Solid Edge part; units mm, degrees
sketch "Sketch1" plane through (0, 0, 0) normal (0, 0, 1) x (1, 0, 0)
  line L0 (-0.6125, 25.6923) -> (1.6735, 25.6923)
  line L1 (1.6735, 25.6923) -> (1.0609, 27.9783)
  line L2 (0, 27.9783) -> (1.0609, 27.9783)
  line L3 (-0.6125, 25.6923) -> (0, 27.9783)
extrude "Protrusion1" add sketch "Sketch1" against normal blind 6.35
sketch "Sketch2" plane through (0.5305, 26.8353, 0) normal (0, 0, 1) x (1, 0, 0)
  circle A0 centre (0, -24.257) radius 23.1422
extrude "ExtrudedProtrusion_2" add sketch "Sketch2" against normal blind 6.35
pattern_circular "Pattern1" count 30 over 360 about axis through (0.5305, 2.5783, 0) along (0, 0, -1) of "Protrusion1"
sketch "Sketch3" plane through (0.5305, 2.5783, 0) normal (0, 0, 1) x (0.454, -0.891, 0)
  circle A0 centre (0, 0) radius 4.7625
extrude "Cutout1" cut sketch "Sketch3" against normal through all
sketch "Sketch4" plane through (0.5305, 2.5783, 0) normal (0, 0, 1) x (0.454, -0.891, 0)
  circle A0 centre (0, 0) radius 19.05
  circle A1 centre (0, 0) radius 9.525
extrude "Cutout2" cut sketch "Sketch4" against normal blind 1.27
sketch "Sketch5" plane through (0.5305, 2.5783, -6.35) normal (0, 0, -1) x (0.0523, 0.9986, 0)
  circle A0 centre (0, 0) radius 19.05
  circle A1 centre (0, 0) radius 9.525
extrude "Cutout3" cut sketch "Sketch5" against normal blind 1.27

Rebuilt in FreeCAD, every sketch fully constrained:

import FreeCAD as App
import Part
import Sketcher
from FreeCAD import Vector
Q = App.Units.Quantity

doc = App.newDocument("Part")
params = doc.addObject("Spreadsheet::Sheet", "Params")
for row, (alias, value) in enumerate([
    ("sketch1_width", "0.09 in"),
    ("pad1_length", "0.25 in"),
    ("pad2_length", "0.25 in"),
    ("sketch3_diameter", "0.375 in"),
    ("sketch4_diameter", "1.5 in"),
    ("sketch4_diameter2", "0.75 in"),
    ("pocket2_length", "0.05 in"),
    ("sketch5_diameter", "1.5 in"),
    ("sketch5_diameter2", "0.75 in"),
    ("pocket3_length", "0.05 in"),
], start=1):
    params.set(f"A{row}", alias)
    params.set(f"B{row}", "=" + value)
    params.setAlias(f"B{row}", alias)

body = doc.addObject("PartDesign::Body", "Body")

# Sketch on XY plane
sketch1 = body.newObject("Sketcher::SketchObject", "Sketch")
sketch1.AttachmentSupport = (doc.getObject("XY_Plane"), [""])
sketch1.MapMode = "FlatFace"
sketch1.addGeometry(Part.LineSegment(Vector(0, 27.9783, 0), Vector(-0.6125, 25.6923, 0)), False)
sketch1.addGeometry(Part.LineSegment(Vector(-0.6125, 25.6923, 0), Vector(1.6735, 25.6923, 0)), False)
sketch1.addGeometry(Part.LineSegment(Vector(1.6735, 25.6923, 0), Vector(1.0609, 27.9783, 0)), False)
sketch1.addGeometry(Part.LineSegment(Vector(1.0609, 27.9783, 0), Vector(0, 27.9783, 0)), False)
sketch1.addConstraint(Sketcher.Constraint("Coincident", 0, 2, 1, 1))
sketch1.addConstraint(Sketcher.Constraint("Coincident", 1, 2, 2, 1))
sketch1.addConstraint(Sketcher.Constraint("Coincident", 2, 2, 3, 1))
sketch1.addConstraint(Sketcher.Constraint("Coincident", 3, 2, 0, 1))
sketch1.addConstraint(Sketcher.Constraint("Horizontal", 1))
sketch1.addConstraint(Sketcher.Constraint("Horizontal", 3))
sketch1.addConstraint(Sketcher.Constraint("PointOnObject", 3, 2, -2))
sketch1.addConstraint(Sketcher.Constraint("Equal", 0, 2))
sketch1.addConstraint(Sketcher.Constraint("Angle", 0, Q("-104.9993 deg")))
sketch1.addConstraint(Sketcher.Constraint("DistanceX", 1, 1, 1, 2, Q("0.09 in")))
sketch1.addConstraint(Sketcher.Constraint("DistanceY", 1, 2, 2, 2, Q("0.09 in")))
sketch1.addConstraint(Sketcher.Constraint("DistanceY", -1, 1, 0, 2, Q("1.0115 in")))
sketch1.setExpression("Constraints[9]", "Params.sketch1_width")
pad1 = body.newObject("PartDesign::Pad", "Pad")
pad1.Profile = sketch1
pad1.setExpression("Length", "Params.pad1_length")
pad1.Reversed = True

# Sketch on XY plane
sketch2 = body.newObject("Sketcher::SketchObject", "Sketch001")
sketch2.AttachmentSupport = (doc.getObject("XY_Plane"), [""])
sketch2.MapMode = "FlatFace"
sketch2.addGeometry(Part.Circle(Vector(0.5305, 2.5783, 0), Vector(0, 0, 1), 23.1422), False)
sketch2.addConstraint(Sketcher.Constraint("Diameter", 0, Q("46.2844 mm")))
sketch2.addConstraint(Sketcher.Constraint("DistanceY", -1, 1, 0, 3, Q("0.1015 in")))
sketch2.addConstraint(Sketcher.Constraint("DistanceX", -1, 1, 0, 3, Q("0.5305 mm")))
pad2 = body.newObject("PartDesign::Pad", "Pad001")
pad2.Profile = sketch2
pad2.setExpression("Length", "Params.pad2_length")
pad2.Reversed = True
doc.recompute()

datumline = body.newObject("PartDesign::Line", "DatumLine")
datumline.Placement = App.Placement(Vector(0.5305, 2.5783, 0), App.Rotation(Vector(0, 0, 1), Vector(0, 0, 1)))
polarpattern = body.newObject("PartDesign::PolarPattern", "PolarPattern")
polarpattern.Originals = [pad1]
polarpattern.Axis = (datumline, [""])
polarpattern.Angle = 360
polarpattern.Occurrences = 30
body.Tip = polarpattern

# Sketch on XY plane
sketch3 = body.newObject("Sketcher::SketchObject", "Sketch002")
sketch3.AttachmentSupport = (doc.getObject("XY_Plane"), [""])
sketch3.MapMode = "FlatFace"
sketch3.addGeometry(Part.Circle(Vector(0.5305, 2.5783, 0), Vector(0, 0, 1), 4.7625), False)
sketch3.addConstraint(Sketcher.Constraint("Diameter", 0, Q("0.375 in")))
sketch3.addConstraint(Sketcher.Constraint("DistanceY", -1, 1, 0, 3, Q("0.1015 in")))
sketch3.addConstraint(Sketcher.Constraint("DistanceX", -1, 1, 0, 3, Q("0.5305 mm")))
sketch3.setExpression("Constraints[0]", "Params.sketch3_diameter")
pocket1 = body.newObject("PartDesign::Pocket", "Pocket")
pocket1.Profile = sketch3
pocket1.Type = "ThroughAll"

# Sketch on XY plane
sketch4 = body.newObject("Sketcher::SketchObject", "Sketch003")
sketch4.AttachmentSupport = (doc.getObject("XY_Plane"), [""])
sketch4.MapMode = "FlatFace"
sketch4.addGeometry(Part.Circle(Vector(0.5305, 2.5783, 0), Vector(0, 0, 1), 19.05), False)
sketch4.addGeometry(Part.Circle(Vector(0.5305, 2.5783, 0), Vector(0, 0, 1), 9.525), False)
sketch4.addConstraint(Sketcher.Constraint("Coincident", 1, 3, 0, 3))
sketch4.addConstraint(Sketcher.Constraint("Diameter", 0, Q("1.5 in")))
sketch4.addConstraint(Sketcher.Constraint("Diameter", 1, Q("0.75 in")))
sketch4.addConstraint(Sketcher.Constraint("DistanceY", -1, 1, 0, 3, Q("0.1015 in")))
sketch4.addConstraint(Sketcher.Constraint("DistanceX", -1, 1, 0, 3, Q("0.5305 mm")))
sketch4.setExpression("Constraints[1]", "Params.sketch4_diameter")
sketch4.setExpression("Constraints[2]", "Params.sketch4_diameter2")
pocket2 = body.newObject("PartDesign::Pocket", "Pocket001")
pocket2.Profile = sketch4
pocket2.setExpression("Length", "Params.pocket2_length")

# Sketch on XY plane
sketch5 = body.newObject("Sketcher::SketchObject", "Sketch004")
sketch5.AttachmentSupport = (doc.getObject("XY_Plane"), [""])
sketch5.MapMode = "FlatFace"
sketch5.AttachmentOffset = App.Placement(Vector(0, 0, -0.25 * 25.4), App.Rotation())
sketch5.addGeometry(Part.Circle(Vector(0.5305, 2.5783, 0), Vector(0, 0, 1), 19.05), False)
sketch5.addGeometry(Part.Circle(Vector(0.5305, 2.5783, 0), Vector(0, 0, 1), 9.525), False)
sketch5.addConstraint(Sketcher.Constraint("Coincident", 1, 3, 0, 3))
sketch5.addConstraint(Sketcher.Constraint("Diameter", 0, Q("1.5 in")))
sketch5.addConstraint(Sketcher.Constraint("Diameter", 1, Q("0.75 in")))
sketch5.addConstraint(Sketcher.Constraint("DistanceY", -1, 1, 0, 3, Q("0.1015 in")))
sketch5.addConstraint(Sketcher.Constraint("DistanceX", -1, 1, 0, 3, Q("0.5305 mm")))
sketch5.setExpression("Constraints[1]", "Params.sketch5_diameter")
sketch5.setExpression("Constraints[2]", "Params.sketch5_diameter2")
pocket3 = body.newObject("PartDesign::Pocket", "Pocket002")
pocket3.Profile = sketch5
pocket3.setExpression("Length", "Params.pocket3_length")
pocket3.Reversed = True

doc.recompute()
